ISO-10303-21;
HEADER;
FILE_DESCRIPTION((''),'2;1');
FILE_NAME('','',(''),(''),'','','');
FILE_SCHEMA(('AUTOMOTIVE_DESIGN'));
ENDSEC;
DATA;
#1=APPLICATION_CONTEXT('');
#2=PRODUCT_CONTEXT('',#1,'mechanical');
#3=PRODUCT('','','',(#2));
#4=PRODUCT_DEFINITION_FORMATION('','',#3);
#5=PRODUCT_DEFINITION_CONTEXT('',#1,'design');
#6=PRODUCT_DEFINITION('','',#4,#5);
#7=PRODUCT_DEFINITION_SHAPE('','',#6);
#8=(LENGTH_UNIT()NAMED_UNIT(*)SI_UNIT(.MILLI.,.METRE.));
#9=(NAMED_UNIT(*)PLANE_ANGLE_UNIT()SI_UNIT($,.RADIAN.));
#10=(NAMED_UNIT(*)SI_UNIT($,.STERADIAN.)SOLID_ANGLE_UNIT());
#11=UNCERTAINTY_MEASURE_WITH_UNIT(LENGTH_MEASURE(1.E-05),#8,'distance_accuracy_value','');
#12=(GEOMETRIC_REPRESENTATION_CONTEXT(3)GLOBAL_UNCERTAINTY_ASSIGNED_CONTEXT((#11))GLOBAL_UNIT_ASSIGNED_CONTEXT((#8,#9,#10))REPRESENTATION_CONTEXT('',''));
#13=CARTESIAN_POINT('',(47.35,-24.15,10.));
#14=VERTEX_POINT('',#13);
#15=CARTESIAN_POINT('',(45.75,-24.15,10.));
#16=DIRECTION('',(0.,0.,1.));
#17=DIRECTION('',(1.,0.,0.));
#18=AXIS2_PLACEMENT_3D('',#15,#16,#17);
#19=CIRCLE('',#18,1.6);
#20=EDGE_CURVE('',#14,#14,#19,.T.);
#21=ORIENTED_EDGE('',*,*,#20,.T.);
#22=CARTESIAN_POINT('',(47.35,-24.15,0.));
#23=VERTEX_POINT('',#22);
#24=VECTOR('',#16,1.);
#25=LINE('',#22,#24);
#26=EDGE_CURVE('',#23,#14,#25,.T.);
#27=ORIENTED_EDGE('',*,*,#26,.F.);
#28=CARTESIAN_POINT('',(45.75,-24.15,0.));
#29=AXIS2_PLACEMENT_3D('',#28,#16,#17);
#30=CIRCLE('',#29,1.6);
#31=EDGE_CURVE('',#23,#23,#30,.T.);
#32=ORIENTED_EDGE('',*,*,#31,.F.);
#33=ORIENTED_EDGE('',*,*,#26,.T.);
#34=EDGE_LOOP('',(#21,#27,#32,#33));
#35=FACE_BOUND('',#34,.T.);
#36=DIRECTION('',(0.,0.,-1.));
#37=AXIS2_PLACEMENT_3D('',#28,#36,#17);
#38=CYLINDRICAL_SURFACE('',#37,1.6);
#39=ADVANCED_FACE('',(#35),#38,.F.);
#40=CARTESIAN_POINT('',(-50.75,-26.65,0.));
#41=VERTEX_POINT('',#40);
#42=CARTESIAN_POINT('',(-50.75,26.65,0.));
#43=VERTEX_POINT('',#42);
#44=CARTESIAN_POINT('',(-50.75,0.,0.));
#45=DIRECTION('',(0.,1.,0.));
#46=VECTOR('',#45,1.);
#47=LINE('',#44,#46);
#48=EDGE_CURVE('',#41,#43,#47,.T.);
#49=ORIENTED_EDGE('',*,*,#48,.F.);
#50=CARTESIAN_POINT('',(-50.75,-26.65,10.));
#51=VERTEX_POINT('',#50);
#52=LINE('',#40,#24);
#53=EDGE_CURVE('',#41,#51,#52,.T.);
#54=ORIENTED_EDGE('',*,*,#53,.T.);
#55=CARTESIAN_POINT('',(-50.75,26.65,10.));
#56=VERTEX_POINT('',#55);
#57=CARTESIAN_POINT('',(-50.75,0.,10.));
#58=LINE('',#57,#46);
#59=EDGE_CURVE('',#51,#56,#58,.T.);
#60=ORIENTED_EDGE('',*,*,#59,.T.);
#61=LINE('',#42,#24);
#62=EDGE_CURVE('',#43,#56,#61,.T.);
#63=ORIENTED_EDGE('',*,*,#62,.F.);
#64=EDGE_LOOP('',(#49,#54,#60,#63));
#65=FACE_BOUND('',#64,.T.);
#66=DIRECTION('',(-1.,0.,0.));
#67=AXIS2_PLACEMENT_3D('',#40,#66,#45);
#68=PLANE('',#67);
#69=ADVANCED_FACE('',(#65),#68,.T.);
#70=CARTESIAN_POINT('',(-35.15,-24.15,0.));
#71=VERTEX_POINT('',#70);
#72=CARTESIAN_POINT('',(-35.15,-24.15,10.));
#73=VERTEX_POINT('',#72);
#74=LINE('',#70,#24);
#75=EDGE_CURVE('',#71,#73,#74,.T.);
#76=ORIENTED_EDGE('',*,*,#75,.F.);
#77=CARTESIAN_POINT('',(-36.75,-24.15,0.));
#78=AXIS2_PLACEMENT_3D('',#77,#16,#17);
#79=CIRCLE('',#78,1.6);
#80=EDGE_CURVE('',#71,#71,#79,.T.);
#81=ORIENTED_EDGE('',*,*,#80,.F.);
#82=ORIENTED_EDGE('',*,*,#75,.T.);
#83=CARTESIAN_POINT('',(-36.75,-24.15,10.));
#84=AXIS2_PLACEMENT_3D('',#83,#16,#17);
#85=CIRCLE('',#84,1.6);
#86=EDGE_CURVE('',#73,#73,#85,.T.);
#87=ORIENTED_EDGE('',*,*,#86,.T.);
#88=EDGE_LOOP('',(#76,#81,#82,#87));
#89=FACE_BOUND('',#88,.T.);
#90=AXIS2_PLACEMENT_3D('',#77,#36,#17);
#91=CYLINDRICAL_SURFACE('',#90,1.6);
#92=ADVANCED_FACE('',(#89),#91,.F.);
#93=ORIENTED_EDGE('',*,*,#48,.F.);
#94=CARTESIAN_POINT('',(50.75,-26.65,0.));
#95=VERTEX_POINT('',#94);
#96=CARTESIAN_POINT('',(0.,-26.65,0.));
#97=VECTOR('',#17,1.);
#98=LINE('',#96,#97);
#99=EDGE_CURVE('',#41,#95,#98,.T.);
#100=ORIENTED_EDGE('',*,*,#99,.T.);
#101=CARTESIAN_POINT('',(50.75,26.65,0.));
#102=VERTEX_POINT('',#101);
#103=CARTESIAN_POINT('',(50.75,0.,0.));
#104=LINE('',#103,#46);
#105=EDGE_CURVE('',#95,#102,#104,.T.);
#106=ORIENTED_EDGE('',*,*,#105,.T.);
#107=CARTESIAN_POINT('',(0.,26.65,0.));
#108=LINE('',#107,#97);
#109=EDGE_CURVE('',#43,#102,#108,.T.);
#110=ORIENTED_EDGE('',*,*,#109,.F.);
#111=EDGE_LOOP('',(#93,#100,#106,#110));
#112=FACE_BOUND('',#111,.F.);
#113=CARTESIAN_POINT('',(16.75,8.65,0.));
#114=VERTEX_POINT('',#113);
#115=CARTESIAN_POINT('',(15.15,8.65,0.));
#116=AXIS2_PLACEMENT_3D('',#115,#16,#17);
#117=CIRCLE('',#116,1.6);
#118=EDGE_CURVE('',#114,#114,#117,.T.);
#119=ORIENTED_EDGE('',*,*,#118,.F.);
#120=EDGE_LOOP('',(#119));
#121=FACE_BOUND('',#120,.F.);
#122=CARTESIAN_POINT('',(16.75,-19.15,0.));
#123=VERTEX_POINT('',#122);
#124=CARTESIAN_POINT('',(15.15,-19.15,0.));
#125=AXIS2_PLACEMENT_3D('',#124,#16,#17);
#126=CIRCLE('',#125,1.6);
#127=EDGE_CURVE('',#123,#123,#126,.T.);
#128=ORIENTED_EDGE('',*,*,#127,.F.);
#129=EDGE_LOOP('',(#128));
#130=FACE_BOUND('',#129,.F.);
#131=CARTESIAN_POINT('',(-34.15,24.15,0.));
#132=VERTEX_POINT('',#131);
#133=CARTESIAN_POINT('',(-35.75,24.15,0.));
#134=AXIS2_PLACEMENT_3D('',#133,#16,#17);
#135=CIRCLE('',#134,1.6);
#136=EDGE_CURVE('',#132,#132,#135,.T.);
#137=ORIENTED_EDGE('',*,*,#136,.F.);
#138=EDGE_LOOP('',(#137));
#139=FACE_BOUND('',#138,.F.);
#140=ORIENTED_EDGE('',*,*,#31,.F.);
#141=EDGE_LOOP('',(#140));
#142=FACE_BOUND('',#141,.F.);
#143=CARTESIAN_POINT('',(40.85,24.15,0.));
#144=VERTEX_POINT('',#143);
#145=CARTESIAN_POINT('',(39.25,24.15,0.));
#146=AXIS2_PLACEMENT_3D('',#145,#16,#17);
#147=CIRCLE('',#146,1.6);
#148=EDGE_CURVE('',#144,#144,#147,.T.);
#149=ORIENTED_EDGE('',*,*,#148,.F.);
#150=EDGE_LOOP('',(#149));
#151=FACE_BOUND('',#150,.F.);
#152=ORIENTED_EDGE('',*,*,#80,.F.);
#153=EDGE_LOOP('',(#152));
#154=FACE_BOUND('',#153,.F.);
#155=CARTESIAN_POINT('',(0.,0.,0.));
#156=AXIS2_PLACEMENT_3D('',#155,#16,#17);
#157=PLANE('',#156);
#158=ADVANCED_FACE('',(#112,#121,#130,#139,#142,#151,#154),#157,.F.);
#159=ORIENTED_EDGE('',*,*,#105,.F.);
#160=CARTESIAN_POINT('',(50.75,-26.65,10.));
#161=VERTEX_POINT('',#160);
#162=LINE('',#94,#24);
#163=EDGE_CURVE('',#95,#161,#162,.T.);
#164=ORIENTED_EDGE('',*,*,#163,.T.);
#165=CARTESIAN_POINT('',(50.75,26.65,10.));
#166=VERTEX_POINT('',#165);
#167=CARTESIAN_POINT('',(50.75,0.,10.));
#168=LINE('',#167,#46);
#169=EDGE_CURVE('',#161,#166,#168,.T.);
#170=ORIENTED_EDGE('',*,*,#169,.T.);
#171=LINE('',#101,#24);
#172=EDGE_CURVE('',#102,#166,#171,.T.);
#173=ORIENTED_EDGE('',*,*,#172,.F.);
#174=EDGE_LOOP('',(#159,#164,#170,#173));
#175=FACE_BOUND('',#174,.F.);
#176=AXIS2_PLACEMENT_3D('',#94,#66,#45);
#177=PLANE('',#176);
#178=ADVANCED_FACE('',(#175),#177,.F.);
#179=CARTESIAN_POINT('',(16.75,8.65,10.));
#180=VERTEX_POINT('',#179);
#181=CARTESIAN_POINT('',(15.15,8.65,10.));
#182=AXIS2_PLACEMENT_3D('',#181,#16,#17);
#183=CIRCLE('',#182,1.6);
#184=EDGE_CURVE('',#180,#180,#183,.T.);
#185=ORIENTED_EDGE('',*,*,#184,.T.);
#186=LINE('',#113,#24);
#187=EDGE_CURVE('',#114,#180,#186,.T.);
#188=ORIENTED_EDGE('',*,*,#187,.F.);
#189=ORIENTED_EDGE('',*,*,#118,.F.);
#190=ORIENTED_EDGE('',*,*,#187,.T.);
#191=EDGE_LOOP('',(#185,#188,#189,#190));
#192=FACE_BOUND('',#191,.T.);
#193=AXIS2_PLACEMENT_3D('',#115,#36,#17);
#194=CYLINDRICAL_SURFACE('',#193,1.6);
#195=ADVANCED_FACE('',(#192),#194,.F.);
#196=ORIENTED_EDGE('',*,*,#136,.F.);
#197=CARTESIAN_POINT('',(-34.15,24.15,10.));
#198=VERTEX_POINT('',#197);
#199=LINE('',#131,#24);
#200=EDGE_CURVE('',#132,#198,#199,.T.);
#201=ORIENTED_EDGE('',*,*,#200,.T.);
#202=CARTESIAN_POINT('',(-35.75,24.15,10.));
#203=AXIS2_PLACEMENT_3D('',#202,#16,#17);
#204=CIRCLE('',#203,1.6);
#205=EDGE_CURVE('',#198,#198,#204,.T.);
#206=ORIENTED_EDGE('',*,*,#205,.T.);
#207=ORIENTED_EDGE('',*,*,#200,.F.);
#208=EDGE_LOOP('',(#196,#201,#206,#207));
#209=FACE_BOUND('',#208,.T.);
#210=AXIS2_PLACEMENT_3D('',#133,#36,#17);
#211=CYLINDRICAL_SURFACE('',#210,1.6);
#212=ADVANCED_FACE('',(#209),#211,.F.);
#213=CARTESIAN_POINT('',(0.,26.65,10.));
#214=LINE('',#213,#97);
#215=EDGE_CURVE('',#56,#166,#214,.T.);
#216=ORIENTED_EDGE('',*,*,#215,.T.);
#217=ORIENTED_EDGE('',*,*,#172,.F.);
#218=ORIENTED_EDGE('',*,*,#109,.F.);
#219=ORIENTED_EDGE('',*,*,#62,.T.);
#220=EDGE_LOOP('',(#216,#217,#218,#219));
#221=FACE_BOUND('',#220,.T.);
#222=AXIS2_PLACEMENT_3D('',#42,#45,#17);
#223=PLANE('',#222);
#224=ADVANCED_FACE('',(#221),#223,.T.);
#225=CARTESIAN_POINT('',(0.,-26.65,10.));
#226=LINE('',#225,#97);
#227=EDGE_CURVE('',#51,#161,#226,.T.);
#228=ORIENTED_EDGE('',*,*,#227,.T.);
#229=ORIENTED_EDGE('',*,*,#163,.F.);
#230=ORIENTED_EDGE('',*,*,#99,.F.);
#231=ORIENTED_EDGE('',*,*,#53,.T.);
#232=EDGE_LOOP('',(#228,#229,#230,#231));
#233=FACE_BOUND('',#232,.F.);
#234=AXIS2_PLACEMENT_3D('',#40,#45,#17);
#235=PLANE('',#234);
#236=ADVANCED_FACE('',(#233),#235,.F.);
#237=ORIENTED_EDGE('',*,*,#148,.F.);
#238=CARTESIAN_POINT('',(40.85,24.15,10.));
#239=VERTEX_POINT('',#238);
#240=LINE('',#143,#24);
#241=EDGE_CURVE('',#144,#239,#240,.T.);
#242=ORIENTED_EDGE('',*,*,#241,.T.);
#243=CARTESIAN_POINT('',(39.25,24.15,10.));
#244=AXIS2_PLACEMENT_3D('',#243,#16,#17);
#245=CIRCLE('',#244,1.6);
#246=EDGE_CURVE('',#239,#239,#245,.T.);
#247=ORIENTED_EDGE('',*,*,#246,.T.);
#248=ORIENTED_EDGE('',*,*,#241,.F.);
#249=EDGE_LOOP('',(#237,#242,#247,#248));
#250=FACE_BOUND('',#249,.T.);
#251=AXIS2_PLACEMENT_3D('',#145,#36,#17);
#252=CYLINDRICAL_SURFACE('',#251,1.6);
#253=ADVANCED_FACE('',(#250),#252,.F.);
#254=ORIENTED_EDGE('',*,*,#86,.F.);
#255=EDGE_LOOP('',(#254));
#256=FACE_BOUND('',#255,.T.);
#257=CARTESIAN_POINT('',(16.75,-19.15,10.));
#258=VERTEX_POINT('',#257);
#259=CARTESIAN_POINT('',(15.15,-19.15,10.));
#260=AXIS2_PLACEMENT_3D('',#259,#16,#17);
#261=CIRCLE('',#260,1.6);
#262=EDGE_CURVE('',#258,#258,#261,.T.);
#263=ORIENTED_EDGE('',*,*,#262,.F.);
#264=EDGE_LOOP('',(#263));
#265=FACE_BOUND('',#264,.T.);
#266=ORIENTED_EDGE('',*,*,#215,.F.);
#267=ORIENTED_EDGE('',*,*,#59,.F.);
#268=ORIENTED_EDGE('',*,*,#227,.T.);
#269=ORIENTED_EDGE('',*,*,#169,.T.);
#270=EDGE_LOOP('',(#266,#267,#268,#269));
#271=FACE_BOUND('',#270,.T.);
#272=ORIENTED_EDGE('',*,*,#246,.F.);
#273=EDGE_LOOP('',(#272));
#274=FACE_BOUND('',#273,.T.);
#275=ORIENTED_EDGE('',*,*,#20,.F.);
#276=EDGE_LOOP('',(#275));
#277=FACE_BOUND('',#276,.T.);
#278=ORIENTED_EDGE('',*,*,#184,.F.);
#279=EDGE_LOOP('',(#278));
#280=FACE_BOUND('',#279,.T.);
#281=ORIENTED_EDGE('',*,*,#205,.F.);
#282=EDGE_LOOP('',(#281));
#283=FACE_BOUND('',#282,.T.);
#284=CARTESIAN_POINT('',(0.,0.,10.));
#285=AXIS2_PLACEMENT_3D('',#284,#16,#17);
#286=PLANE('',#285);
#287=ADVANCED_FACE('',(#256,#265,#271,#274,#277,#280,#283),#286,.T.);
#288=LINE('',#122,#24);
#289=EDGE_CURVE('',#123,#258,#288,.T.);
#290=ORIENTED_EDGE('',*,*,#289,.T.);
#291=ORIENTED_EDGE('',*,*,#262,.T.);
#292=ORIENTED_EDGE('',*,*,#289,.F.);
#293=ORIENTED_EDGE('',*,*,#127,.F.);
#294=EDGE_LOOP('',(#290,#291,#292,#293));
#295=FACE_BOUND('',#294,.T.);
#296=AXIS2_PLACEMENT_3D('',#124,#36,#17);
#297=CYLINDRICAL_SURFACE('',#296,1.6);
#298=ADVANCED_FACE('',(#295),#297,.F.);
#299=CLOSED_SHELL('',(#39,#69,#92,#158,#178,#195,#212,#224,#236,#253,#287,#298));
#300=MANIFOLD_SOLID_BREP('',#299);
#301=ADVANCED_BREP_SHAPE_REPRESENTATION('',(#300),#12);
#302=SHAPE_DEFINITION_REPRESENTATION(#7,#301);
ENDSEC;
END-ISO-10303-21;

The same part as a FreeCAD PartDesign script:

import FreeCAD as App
import Part
import Sketcher
Q = App.Units.Quantity


def add_polygon(sketch, points):
    """Adds a closed chain of lines whose ends are joined by coincident constraints."""
    first, n = sketch.GeometryCount, len(points)
    for a, b in zip(points, points[1:] + points[:1]):
        sketch.addGeometry(Part.LineSegment(App.Vector(*a, 0), App.Vector(*b, 0)), False)
    for i in range(n):
        sketch.addConstraint(Sketcher.Constraint("Coincident", first + i, 2, first + (i + 1) % n, 1))

doc = App.newDocument("Part")
params = doc.addObject("Spreadsheet::Sheet", "Params")
for row, (alias, value) in enumerate([
    ("sketch1_diameter", "3.2 mm"),
    ("sketch1_width", "101.5 mm"),
    ("sketch1_height", "53.3 mm"),
    ("pad1_length", "10 mm"),
], start=1):
    params.set(f"A{row}", alias)
    params.set(f"B{row}", "=" + value)
    params.setAlias(f"B{row}", alias)

body = doc.addObject("PartDesign::Body", "Body")

# Sketch on XY plane
sketch1 = body.newObject("Sketcher::SketchObject", "Sketch")
sketch1.AttachmentSupport = (doc.getObject("XY_Plane"), [""])
sketch1.MapMode = "FlatFace"
add_polygon(sketch1, [(-50.75, 26.65), (-50.75, -26.65), (50.75, -26.65), (50.75, 26.65)])  # lines 0-3
sketch1.addGeometry(Part.Circle(App.Vector(-36.75, -24.15, 0), App.Vector(0, 0, 1), 1.6), False)  # 4
sketch1.addGeometry(Part.Circle(App.Vector(15.15, -19.15, 0), App.Vector(0, 0, 1), 1.6), False)  # 5
sketch1.addGeometry(Part.Circle(App.Vector(45.75, -24.15, 0), App.Vector(0, 0, 1), 1.6), False)  # 6
sketch1.addGeometry(Part.Circle(App.Vector(-35.75, 24.15, 0), App.Vector(0, 0, 1), 1.6), False)  # 7
sketch1.addGeometry(Part.Circle(App.Vector(15.15, 8.65, 0), App.Vector(0, 0, 1), 1.6), False)  # 8
sketch1.addGeometry(Part.Circle(App.Vector(39.25, 24.15, 0), App.Vector(0, 0, 1), 1.6), False)  # 9
sketch1.addConstraint(Sketcher.Constraint("Vertical", 0))
sketch1.addConstraint(Sketcher.Constraint("Horizontal", 1))
sketch1.addConstraint(Sketcher.Constraint("Vertical", 2))
sketch1.addConstraint(Sketcher.Constraint("Horizontal", 3))
sketch1.addConstraint(Sketcher.Constraint("Equal", 4, 5))
sketch1.addConstraint(Sketcher.Constraint("Equal", 5, 6))
sketch1.addConstraint(Sketcher.Constraint("Equal", 6, 7))
sketch1.addConstraint(Sketcher.Constraint("Equal", 7, 8))
sketch1.addConstraint(Sketcher.Constraint("Equal", 8, 9))
sketch1.addConstraint(Sketcher.Constraint("Symmetric", 0, 2, 2, 2, -1, 1))
sketch1.addConstraint(Sketcher.Constraint("Horizontal", 4, 3, 6, 3))
sketch1.addConstraint(Sketcher.Constraint("Horizontal", 7, 3, 9, 3))
sketch1.addConstraint(Sketcher.Constraint("Vertical", 5, 3, 8, 3))
sketch1.addConstraint(Sketcher.Constraint("Diameter", 4, Q("3.2 mm")))
sketch1.addConstraint(Sketcher.Constraint("DistanceX", 1, 1, 1, 2, Q("101.5 mm")))
sketch1.addConstraint(Sketcher.Constraint("DistanceY", 0, 2, 0, 1, Q("53.3 mm")))
sketch1.addConstraint(Sketcher.Constraint("DistanceY", 4, 3, 5, 3, Q("5 mm")))
sketch1.addConstraint(Sketcher.Constraint("DistanceX", 4, 3, 7, 3, Q("1 mm")))
sketch1.addConstraint(Sketcher.Constraint("DistanceX", 7, 3, 9, 3, Q("75 mm")))
sketch1.addConstraint(Sketcher.Constraint("DistanceX", 0, 2, 4, 3, Q("14 mm")))
sketch1.addConstraint(Sketcher.Constraint("DistanceX", 6, 3, 1, 2, Q("5 mm")))
sketch1.addConstraint(Sketcher.Constraint("DistanceY", 8, 3, 2, 2, Q("18 mm")))
sketch1.addConstraint(Sketcher.Constraint("DistanceX", 4, 3, 5, 3, Q("51.9 mm")))
sketch1.addConstraint(Sketcher.Constraint("DistanceY", 4, 3, 7, 3, Q("48.3 mm")))
sketch1.addConstraint(Sketcher.Constraint("DistanceY", 5, 3, 8, 3, Q("27.8 mm")))
sketch1.setExpression("Constraints[17]", "Params.sketch1_diameter")
sketch1.setExpression("Constraints[18]", "Params.sketch1_width")
sketch1.setExpression("Constraints[19]", "Params.sketch1_height")
pad1 = body.newObject("PartDesign::Pad", "Pad")
pad1.Profile = sketch1
pad1.setExpression("Length", "Params.pad1_length")

doc.recompute()
